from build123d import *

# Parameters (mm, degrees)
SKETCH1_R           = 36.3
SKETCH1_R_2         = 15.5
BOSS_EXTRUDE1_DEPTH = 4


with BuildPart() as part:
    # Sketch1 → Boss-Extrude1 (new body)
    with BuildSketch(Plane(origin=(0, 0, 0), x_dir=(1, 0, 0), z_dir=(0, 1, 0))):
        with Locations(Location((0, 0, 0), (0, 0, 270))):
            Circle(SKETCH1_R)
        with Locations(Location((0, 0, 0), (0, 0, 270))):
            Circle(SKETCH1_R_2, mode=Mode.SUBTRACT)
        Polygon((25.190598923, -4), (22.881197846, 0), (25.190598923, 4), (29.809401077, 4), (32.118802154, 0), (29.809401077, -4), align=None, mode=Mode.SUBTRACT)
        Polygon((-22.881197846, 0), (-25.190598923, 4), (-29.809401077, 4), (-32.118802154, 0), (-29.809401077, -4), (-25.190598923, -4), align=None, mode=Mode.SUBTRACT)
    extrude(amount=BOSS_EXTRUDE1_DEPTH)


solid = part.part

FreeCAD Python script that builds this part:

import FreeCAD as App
import Part
import Sketcher

V = App.Vector
Q = App.Units.Quantity

doc = App.newDocument("Part")
params = doc.addObject("Spreadsheet::Sheet", "Params")
for row, (alias, value) in enumerate([
    ("sketch1_diameter", "31 mm"),
    ("sketch1_diameter2", "72.6 mm"),
    ("pad1_length", "4 mm"),
], start=1):
    params.set(f"A{row}", alias)
    params.set(f"B{row}", "=" + value)
    params.setAlias(f"B{row}", alias)

body = doc.addObject("PartDesign::Body", "Body")

# Sketch on XZ plane
sketch1 = body.newObject("Sketcher::SketchObject", "Sketch")
sketch1.AttachmentSupport = (doc.getObject("XZ_Plane"), [""])
sketch1.MapMode = "FlatFace"
sketch1.addGeometry([
    Part.Circle(V(0, 0, 0), V(0, 0, 1), 36.3),  # 0
    Part.LineSegment(V(-25.190599, -4, 0), V(-22.881198, 0, 0)),  # 1
    Part.LineSegment(V(-22.881198, 0, 0), V(-25.190599, 4, 0)),  # 2
    Part.LineSegment(V(-25.190599, 4, 0), V(-29.809401, 4, 0)),  # 3
    Part.LineSegment(V(-29.809401, 4, 0), V(-32.118802, 0, 0)),  # 4
    Part.LineSegment(V(-32.118802, 0, 0), V(-29.809401, -4, 0)),  # 5
    Part.LineSegment(V(-29.809401, -4, 0), V(-25.190599, -4, 0)),  # 6
    Part.LineSegment(V(29.809401, 4, 0), V(25.190599, 4, 0)),  # 7
    Part.LineSegment(V(25.190599, 4, 0), V(22.881198, 0, 0)),  # 8
    Part.LineSegment(V(22.881198, 0, 0), V(25.190599, -4, 0)),  # 9
    Part.LineSegment(V(25.190599, -4, 0), V(29.809401, -4, 0)),  # 10
    Part.LineSegment(V(29.809401, -4, 0), V(32.118802, 0, 0)),  # 11
    Part.LineSegment(V(32.118802, 0, 0), V(29.809401, 4, 0)),  # 12
    Part.Circle(V(0, 0, 0), V(0, 0, 1), 15.5),  # 13
], False)
sketch1.addConstraint([
    Sketcher.Constraint("Coincident", 1, 2, 2, 1),
    Sketcher.Constraint("Coincident", 2, 2, 3, 1),
    Sketcher.Constraint("Coincident", 3, 2, 4, 1),
    Sketcher.Constraint("Coincident", 4, 2, 5, 1),
    Sketcher.Constraint("Coincident", 5, 2, 6, 1),
    Sketcher.Constraint("Coincident", 6, 2, 1, 1),
    Sketcher.Constraint("Coincident", 7, 2, 8, 1),
    Sketcher.Constraint("Coincident", 8, 2, 9, 1),
    Sketcher.Constraint("Coincident", 9, 2, 10, 1),
    Sketcher.Constraint("Coincident", 10, 2, 11, 1),
    Sketcher.Constraint("Coincident", 11, 2, 12, 1),
    Sketcher.Constraint("Coincident", 12, 2, 7, 1),
    Sketcher.Constraint("Horizontal", 3),
    Sketcher.Constraint("Horizontal", 6),
    Sketcher.Constraint("Horizontal", 7),
    Sketcher.Constraint("Horizontal", 10),
    Sketcher.Constraint("Coincident", 0, 3, -1, 1),
    Sketcher.Constraint("Coincident", 13, 3, -1, 1),
    Sketcher.Constraint("Symmetric", 6, 2, 7, 2, -1, 1),
    Sketcher.Constraint("Symmetric", 1, 2, 8, 2, -1, 1),
    Sketcher.Constraint("Symmetric", 2, 2, 9, 2, -1, 1),
    Sketcher.Constraint("Symmetric", 4, 2, 11, 2, -1, 1),
    Sketcher.Constraint("Symmetric", 2, 2, 7, 2, -2),
    Sketcher.Constraint("PointOnObject", 1, 2, -1),
    Sketcher.Constraint("PointOnObject", 4, 2, -1),
    Sketcher.Constraint("Parallel", 1, 4),
    Sketcher.Constraint("Parallel", 2, 5),
    Sketcher.Constraint("Parallel", 8, 11),
    Sketcher.Constraint("Parallel", 9, 12),
    Sketcher.Constraint("Diameter", 13, 31.0),
    Sketcher.Constraint("Diameter", 0, 72.6),
    Sketcher.Constraint("Angle", 1, Q("60 deg")),
    Sketcher.Constraint("DistanceY", -1, 1, 2, 2, 4.0),
    Sketcher.Constraint("DistanceX", 2, 2, -1, 1, 25.190599),
    Sketcher.Constraint("DistanceX", 3, 2, -1, 1, 29.809401),
])
sketch1.setExpression("Constraints[29]", "Params.sketch1_diameter")
sketch1.setExpression("Constraints[30]", "Params.sketch1_diameter2")
pad1 = body.newObject("PartDesign::Pad", "Pad")
pad1.Profile = sketch1
pad1.setExpression("Length", "Params.pad1_length")
pad1.Reversed = True

doc.recompute()
